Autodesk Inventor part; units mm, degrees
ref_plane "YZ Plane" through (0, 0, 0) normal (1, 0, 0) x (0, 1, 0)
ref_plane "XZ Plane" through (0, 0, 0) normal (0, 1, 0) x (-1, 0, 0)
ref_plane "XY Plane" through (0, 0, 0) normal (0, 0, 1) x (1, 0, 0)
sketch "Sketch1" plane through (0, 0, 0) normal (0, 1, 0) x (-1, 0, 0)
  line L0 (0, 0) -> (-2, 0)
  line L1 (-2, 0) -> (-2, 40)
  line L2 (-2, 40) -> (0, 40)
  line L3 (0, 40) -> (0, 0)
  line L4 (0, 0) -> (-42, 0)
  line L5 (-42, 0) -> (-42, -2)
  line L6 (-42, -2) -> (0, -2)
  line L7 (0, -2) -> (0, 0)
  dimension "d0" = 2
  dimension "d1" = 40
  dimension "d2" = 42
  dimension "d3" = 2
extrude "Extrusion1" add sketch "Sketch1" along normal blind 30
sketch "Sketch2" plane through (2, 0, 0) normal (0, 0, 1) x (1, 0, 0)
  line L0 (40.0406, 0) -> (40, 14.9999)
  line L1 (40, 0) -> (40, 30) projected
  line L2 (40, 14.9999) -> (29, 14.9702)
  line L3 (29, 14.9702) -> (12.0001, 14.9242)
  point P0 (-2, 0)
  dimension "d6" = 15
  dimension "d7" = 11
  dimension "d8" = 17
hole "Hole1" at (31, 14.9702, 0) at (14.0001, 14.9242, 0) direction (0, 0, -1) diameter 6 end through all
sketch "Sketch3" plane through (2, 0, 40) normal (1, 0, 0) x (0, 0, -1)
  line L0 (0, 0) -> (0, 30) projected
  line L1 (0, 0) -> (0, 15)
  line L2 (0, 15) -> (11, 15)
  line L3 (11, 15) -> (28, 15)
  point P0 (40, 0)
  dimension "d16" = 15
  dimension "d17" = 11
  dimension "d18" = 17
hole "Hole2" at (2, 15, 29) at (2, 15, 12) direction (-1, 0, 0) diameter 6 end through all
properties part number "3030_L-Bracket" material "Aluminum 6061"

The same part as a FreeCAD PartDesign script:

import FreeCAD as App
import Part
import Sketcher
Q = App.Units.Quantity


def add_polygon(sketch, points):
    """Adds a closed chain of lines whose ends are joined by coincident constraints."""
    first, n = sketch.GeometryCount, len(points)
    for a, b in zip(points, points[1:] + points[:1]):
        sketch.addGeometry(Part.LineSegment(App.Vector(*a, 0), App.Vector(*b, 0)), False)
    for i in range(n):
        sketch.addConstraint(Sketcher.Constraint("Coincident", first + i, 2, first + (i + 1) % n, 1))

doc = App.newDocument("Part")
body = doc.addObject("PartDesign::Body", "Body")

sketch1 = body.newObject("Sketcher::SketchObject", "Sketch")
sketch1.AttachmentSupport = (doc.getObject("XZ_Plane"), [""])
sketch1.MapMode = "FlatFace"
add_polygon(sketch1, [(0, -2), (0, 40), (2, 40), (2, 0), (42, 0), (42, -2)])
sketch1.addConstraint([
    Sketcher.Constraint("Vertical", 0),
    Sketcher.Constraint("Horizontal", 1),
    Sketcher.Constraint("Vertical", 2),
    Sketcher.Constraint("Horizontal", 3),
    Sketcher.Constraint("Vertical", 4),
    Sketcher.Constraint("Horizontal", 5),
    Sketcher.Constraint("PointOnObject", 0, 2, -2),
    Sketcher.Constraint("PointOnObject", 2, 2, -1),
    Sketcher.Constraint("Equal", 5, 0),
    Sketcher.Constraint("Equal", 3, 2),
    Sketcher.Constraint("DistanceX", 1, 1, 1, 2, Q("2 mm")),
    Sketcher.Constraint("DistanceX", 3, 1, 3, 2, Q("40 mm")),
])
pad1 = body.newObject("PartDesign::Pad", "Pad")
pad1.Profile = sketch1
pad1.Length = 30
pad1.Reversed = True

sketch2 = body.newObject("Sketcher::SketchObject", "Sketch001")
sketch2.AttachmentSupport = (doc.getObject("XY_Plane"), [""])
sketch2.MapMode = "FlatFace"
sketch2.addGeometry([
    Part.Circle(App.Vector(31, 15, 0), App.Vector(0, 0, 1), 3),
    Part.Circle(App.Vector(14, 14.9, 0), App.Vector(0, 0, 1), 3),
], False)
sketch2.addConstraint([
    Sketcher.Constraint("Equal", 0, 1),
    Sketcher.Constraint("Diameter", 0, Q("6 mm")),
    Sketcher.Constraint("DistanceX", -1, 1, 0, 3, Q("31 mm")),
    Sketcher.Constraint("DistanceX", -1, 1, 1, 3, Q("14 mm")),
    Sketcher.Constraint("DistanceY", 1, 3, 0, 3, Q("0.046 mm")),
    Sketcher.Constraint("DistanceY", -1, 1, 0, 3, Q("14.9702 mm")),
])
doc.recompute()
hole = body.newObject("PartDesign::Hole", "Hole")
hole.Profile = sketch2
hole.ThreadType = "None"
hole.Diameter = 6
hole.DepthType = "ThroughAll"

sketch3 = body.newObject("Sketcher::SketchObject", "Sketch002")
sketch3.AttachmentSupport = (doc.getObject("YZ_Plane"), [""])
sketch3.MapMode = "FlatFace"
sketch3.AttachmentOffset = App.Placement(App.Vector(0, 0, 2), App.Rotation())
sketch3.addGeometry([
    Part.Circle(App.Vector(15, 29, 0), App.Vector(0, 0, 1), 3),
    Part.Circle(App.Vector(15, 12, 0), App.Vector(0, 0, 1), 3),
], False)
sketch3.addConstraint([
    Sketcher.Constraint("Equal", 0, 1),
    Sketcher.Constraint("Vertical", 0, 3, 1, 3),
    Sketcher.Constraint("Diameter", 0, Q("6 mm")),
    Sketcher.Constraint("DistanceX", -1, 1, 0, 3, Q("15 mm")),
    Sketcher.Constraint("DistanceY", -1, 1, 0, 3, Q("29 mm")),
    Sketcher.Constraint("DistanceY", -1, 1, 1, 3, Q("12 mm")),
])
doc.recompute()
hole2 = body.newObject("PartDesign::Hole", "Hole001")
hole2.Profile = sketch3
hole2.ThreadType = "None"
hole2.Diameter = 6
hole2.DepthType = "ThroughAll"

doc.recompute()
